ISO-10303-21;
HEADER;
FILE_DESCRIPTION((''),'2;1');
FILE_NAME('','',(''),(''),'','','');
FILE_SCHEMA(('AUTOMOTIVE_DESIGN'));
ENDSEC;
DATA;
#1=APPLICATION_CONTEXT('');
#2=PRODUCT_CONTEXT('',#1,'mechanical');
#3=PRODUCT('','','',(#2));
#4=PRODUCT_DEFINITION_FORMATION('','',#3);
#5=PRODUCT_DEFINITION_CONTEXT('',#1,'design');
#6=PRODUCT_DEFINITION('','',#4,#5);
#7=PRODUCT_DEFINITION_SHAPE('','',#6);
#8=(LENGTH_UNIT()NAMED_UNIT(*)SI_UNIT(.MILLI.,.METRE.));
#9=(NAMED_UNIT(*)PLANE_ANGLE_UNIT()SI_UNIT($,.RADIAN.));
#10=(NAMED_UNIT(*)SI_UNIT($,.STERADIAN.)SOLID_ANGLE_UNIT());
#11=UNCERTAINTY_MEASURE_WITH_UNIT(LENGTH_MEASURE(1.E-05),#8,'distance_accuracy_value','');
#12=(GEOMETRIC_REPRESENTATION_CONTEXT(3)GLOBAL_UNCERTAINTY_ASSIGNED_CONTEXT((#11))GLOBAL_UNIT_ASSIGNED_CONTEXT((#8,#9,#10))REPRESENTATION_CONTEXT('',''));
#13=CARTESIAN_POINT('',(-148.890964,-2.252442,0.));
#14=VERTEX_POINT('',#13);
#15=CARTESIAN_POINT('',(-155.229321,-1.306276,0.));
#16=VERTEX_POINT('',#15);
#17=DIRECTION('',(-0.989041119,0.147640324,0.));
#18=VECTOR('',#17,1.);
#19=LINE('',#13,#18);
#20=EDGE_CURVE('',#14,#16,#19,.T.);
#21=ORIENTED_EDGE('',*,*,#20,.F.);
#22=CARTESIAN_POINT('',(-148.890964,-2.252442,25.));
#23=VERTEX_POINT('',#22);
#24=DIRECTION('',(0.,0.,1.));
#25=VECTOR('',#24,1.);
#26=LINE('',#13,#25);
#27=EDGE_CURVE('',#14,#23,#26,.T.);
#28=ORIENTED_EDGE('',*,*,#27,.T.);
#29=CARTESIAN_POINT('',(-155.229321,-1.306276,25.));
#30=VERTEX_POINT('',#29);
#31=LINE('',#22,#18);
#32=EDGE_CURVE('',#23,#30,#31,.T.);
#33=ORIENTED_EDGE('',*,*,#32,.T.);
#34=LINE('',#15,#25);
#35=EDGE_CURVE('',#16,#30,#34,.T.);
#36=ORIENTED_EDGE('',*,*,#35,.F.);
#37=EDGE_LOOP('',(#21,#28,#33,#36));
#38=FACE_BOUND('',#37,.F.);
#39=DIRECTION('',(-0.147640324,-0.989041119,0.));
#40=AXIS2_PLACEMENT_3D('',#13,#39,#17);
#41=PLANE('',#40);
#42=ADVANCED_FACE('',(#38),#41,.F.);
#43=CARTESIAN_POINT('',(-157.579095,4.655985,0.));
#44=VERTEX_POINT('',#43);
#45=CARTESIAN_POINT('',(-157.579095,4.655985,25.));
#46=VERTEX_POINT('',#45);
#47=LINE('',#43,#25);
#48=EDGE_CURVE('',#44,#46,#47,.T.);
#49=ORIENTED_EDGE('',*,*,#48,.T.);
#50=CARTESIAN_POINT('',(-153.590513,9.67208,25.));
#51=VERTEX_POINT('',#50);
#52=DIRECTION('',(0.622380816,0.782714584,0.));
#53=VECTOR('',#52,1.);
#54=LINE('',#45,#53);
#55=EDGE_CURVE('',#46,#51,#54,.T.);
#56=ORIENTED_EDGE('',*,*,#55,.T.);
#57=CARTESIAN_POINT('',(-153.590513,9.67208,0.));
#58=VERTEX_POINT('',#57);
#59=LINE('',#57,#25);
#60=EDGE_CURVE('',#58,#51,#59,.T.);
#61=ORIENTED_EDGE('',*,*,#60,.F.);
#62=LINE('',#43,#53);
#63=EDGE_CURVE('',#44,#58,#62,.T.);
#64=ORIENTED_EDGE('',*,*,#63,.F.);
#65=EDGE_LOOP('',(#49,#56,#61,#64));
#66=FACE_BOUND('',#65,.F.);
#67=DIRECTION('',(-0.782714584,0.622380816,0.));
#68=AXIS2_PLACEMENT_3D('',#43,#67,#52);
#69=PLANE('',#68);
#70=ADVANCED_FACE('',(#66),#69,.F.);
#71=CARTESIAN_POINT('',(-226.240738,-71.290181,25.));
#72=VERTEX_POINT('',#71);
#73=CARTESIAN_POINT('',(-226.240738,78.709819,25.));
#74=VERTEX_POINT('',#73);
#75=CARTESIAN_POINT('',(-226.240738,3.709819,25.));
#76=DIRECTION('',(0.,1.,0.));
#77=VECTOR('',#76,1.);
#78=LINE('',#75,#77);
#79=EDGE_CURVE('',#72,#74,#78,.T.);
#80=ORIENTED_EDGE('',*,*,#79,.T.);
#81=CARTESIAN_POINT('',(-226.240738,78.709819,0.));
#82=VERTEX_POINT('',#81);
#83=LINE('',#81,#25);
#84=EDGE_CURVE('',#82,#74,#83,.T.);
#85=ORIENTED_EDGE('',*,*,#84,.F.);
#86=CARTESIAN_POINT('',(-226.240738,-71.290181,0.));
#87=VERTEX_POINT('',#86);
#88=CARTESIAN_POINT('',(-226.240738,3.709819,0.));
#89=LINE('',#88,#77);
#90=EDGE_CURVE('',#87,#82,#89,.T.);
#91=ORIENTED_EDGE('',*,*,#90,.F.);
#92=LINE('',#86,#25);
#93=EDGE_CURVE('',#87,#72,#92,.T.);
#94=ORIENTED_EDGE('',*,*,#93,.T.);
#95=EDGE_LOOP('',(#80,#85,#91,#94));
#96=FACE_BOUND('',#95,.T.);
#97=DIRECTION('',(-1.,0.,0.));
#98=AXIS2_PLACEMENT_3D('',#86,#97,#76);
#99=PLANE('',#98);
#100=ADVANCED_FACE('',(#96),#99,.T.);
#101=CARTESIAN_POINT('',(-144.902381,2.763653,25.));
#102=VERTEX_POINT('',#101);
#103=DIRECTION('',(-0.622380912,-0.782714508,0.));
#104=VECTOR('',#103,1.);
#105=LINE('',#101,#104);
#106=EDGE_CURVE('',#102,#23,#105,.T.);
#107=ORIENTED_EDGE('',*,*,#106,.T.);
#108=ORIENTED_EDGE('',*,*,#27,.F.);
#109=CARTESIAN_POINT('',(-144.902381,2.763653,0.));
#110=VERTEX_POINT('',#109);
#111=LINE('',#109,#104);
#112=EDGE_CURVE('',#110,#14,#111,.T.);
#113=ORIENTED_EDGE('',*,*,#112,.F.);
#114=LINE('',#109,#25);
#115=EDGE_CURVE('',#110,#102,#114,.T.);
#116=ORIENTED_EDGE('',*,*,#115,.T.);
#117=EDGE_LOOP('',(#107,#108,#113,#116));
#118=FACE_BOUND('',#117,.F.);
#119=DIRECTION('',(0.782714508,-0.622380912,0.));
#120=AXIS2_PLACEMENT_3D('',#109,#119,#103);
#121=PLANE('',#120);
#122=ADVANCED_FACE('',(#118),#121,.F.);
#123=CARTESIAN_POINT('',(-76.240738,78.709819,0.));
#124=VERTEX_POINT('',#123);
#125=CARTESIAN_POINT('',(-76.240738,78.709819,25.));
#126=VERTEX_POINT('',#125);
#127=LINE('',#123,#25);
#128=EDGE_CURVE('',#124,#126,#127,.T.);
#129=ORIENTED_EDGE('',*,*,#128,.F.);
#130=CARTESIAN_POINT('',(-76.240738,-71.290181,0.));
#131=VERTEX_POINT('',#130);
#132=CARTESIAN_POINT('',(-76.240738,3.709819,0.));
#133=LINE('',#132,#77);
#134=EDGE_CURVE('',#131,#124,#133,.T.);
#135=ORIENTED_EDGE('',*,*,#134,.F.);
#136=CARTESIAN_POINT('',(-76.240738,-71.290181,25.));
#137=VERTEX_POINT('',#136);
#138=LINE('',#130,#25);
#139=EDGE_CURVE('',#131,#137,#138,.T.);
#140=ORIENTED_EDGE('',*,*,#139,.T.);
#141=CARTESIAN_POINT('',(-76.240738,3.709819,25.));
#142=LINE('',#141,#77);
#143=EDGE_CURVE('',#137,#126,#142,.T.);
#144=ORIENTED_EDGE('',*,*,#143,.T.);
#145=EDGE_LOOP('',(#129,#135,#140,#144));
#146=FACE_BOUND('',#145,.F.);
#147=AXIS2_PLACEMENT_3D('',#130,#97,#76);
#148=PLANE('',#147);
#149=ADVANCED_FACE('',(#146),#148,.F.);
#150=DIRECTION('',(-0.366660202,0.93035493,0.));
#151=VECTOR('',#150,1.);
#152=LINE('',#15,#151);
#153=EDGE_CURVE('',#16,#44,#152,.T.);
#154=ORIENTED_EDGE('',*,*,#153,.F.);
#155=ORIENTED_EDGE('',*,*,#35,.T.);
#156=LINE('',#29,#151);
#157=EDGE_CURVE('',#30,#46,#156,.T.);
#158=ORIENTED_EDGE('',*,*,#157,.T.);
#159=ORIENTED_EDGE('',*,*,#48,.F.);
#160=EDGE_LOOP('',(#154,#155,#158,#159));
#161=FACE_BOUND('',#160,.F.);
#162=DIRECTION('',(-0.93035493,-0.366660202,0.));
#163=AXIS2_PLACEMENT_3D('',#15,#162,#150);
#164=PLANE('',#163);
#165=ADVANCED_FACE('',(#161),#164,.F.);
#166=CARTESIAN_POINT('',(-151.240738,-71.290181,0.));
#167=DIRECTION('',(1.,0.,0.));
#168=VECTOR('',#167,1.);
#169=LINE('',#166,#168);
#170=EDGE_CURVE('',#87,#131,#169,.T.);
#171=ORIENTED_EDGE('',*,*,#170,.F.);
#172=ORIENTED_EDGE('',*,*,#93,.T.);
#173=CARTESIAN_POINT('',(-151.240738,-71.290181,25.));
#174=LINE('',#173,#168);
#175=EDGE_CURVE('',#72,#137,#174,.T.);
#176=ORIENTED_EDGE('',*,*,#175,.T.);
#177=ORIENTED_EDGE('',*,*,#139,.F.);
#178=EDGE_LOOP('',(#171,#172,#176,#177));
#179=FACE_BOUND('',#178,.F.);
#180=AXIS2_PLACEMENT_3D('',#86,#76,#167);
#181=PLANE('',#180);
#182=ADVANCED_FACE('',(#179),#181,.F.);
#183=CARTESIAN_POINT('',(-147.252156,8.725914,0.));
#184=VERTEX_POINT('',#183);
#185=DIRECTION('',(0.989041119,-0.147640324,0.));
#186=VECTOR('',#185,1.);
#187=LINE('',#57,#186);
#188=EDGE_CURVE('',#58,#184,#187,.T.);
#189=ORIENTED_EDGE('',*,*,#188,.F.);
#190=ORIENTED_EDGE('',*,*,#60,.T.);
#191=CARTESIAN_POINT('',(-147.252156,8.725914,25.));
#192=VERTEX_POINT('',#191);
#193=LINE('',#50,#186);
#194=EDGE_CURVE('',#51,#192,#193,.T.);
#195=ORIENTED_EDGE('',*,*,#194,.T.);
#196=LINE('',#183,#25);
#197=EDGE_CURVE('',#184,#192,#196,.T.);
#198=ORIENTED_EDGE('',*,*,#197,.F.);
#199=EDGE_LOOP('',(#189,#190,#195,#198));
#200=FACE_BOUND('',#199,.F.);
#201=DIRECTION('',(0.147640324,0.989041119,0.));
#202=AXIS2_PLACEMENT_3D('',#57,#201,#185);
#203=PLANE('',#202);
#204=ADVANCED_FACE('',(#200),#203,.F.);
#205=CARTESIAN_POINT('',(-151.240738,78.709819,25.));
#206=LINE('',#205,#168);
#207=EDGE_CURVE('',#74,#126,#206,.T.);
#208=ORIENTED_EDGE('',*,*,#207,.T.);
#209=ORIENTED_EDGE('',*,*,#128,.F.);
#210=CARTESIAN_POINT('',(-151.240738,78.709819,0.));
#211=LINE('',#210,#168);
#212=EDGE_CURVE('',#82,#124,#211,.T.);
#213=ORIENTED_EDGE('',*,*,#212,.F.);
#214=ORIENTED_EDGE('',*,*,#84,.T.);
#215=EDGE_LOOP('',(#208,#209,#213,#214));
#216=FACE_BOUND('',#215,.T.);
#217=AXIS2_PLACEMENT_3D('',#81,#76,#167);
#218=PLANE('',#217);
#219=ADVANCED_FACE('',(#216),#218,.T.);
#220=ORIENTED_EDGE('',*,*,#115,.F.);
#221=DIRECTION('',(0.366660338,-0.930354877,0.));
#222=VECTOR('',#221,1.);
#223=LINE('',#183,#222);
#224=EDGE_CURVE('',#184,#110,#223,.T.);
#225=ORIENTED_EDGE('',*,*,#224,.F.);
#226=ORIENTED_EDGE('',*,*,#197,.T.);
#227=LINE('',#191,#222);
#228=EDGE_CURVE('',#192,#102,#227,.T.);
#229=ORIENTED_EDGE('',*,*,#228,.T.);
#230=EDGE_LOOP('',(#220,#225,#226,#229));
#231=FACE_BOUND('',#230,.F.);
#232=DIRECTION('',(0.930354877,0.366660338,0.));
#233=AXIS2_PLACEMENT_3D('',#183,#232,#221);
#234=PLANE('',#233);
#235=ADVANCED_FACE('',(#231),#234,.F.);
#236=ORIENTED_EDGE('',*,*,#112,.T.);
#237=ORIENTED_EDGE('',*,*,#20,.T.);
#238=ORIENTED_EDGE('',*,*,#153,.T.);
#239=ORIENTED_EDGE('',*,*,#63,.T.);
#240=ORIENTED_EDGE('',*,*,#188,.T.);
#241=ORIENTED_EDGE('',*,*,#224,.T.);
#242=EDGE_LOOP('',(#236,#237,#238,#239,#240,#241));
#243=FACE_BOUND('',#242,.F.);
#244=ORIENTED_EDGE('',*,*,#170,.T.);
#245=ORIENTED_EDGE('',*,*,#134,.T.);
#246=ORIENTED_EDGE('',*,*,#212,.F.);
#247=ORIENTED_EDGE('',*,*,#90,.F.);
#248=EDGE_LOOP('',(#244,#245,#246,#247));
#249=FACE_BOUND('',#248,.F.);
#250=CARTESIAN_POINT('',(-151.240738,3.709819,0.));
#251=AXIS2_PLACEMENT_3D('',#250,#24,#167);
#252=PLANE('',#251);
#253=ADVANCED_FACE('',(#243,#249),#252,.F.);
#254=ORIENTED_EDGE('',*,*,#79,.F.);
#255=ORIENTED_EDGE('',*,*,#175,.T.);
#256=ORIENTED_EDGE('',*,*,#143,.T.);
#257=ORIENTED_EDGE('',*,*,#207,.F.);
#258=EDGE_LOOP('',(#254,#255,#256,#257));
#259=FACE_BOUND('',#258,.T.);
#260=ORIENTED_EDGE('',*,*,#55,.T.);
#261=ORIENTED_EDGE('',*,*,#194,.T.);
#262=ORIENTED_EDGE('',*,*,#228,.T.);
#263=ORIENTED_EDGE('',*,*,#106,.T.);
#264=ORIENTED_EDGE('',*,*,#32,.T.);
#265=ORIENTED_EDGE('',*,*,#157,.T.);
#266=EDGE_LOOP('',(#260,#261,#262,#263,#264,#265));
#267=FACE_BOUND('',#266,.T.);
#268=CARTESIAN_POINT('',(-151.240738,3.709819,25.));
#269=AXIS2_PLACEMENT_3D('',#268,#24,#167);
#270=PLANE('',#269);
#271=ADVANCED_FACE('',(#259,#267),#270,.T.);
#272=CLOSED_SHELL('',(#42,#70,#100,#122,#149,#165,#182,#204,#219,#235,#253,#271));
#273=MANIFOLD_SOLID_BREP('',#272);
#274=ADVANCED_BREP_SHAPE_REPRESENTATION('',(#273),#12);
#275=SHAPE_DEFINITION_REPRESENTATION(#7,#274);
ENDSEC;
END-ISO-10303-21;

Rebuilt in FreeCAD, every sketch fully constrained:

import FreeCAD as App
import Part
import Sketcher

V = App.Vector

doc = App.newDocument("Part")
body = doc.addObject("PartDesign::Body", "Body")

sketch1 = body.newObject("Sketcher::SketchObject", "Sketch")
sketch1.AttachmentSupport = (doc.getObject("XY_Plane"), [""])
sketch1.MapMode = "FlatFace"
sketch1.addGeometry(Part.LineSegment(V(-226.240738, 78.709819, 0), V(-226.240738, -71.290181, 0)), False)
sketch1.addGeometry(Part.LineSegment(V(-226.240738, -71.290181, 0), V(-76.240738, -71.290181, 0)), False)
sketch1.addGeometry(Part.LineSegment(V(-76.240738, -71.290181, 0), V(-76.240738, 78.709819, 0)), False)
sketch1.addGeometry(Part.LineSegment(V(-76.240738, 78.709819, 0), V(-226.240738, 78.709819, 0)), False)
sketch1.addGeometry(Part.LineSegment(V(-157.579095, 4.655985, 0), V(-153.590513, 9.67208, 0)), False)
sketch1.addGeometry(Part.LineSegment(V(-153.590513, 9.67208, 0), V(-147.252156, 8.725914, 0)), False)
sketch1.addGeometry(Part.LineSegment(V(-147.252156, 8.725914, 0), V(-144.902381, 2.763653, 0)), False)
sketch1.addGeometry(Part.LineSegment(V(-144.902381, 2.763653, 0), V(-148.890964, -2.252442, 0)), False)
sketch1.addGeometry(Part.LineSegment(V(-148.890964, -2.252442, 0), V(-155.229321, -1.306276, 0)), False)
sketch1.addGeometry(Part.LineSegment(V(-155.229321, -1.306276, 0), V(-157.579095, 4.655985, 0)), False)
sketch1.addConstraint(Sketcher.Constraint("Coincident", 0, 2, 1, 1))
sketch1.addConstraint(Sketcher.Constraint("Coincident", 1, 2, 2, 1))
sketch1.addConstraint(Sketcher.Constraint("Coincident", 2, 2, 3, 1))
sketch1.addConstraint(Sketcher.Constraint("Coincident", 3, 2, 0, 1))
sketch1.addConstraint(Sketcher.Constraint("Coincident", 4, 2, 5, 1))
sketch1.addConstraint(Sketcher.Constraint("Coincident", 5, 2, 6, 1))
sketch1.addConstraint(Sketcher.Constraint("Coincident", 6, 2, 7, 1))
sketch1.addConstraint(Sketcher.Constraint("Coincident", 7, 2, 8, 1))
sketch1.addConstraint(Sketcher.Constraint("Coincident", 8, 2, 9, 1))
sketch1.addConstraint(Sketcher.Constraint("Coincident", 9, 2, 4, 1))
sketch1.addConstraint(Sketcher.Constraint("Vertical", 0))
sketch1.addConstraint(Sketcher.Constraint("Horizontal", 1))
sketch1.addConstraint(Sketcher.Constraint("Vertical", 2))
sketch1.addConstraint(Sketcher.Constraint("Horizontal", 3))
sketch1.addConstraint(Sketcher.Constraint("Parallel", 4, 7))
sketch1.addConstraint(Sketcher.Constraint("Parallel", 5, 8))
sketch1.addConstraint(Sketcher.Constraint("Parallel", 6, 9))
sketch1.addConstraint(Sketcher.Constraint("Equal", 3, 0))
sketch1.addConstraint(Sketcher.Constraint("Equal", 4, 5))
sketch1.addConstraint(Sketcher.Constraint("Equal", 5, 6))
sketch1.addConstraint(Sketcher.Constraint("Equal", 6, 7))
sketch1.addConstraint(Sketcher.Constraint("DistanceX", 1, 1, 1, 2, 150.0))
sketch1.addConstraint(Sketcher.Constraint("Distance", 7, 6.408588))
sketch1.addConstraint(Sketcher.Constraint("DistanceX", 0, 2, -1, 1, 226.240738))
sketch1.addConstraint(Sketcher.Constraint("DistanceY", 0, 2, -1, 1, 71.290181))
sketch1.addConstraint(Sketcher.Constraint("DistanceY", -1, 1, 4, 2, 9.67208))
sketch1.addConstraint(Sketcher.Constraint("DistanceX", 6, 2, -1, 1, 144.902381))
sketch1.addConstraint(Sketcher.Constraint("DistanceY", 7, 2, -1, 1, 2.252442))
sketch1.addConstraint(Sketcher.Constraint("DistanceX", 8, 2, -1, 1, 155.229321))
sketch1.addConstraint(Sketcher.Constraint("DistanceX", 5, 2, 2, 2, 71.011418))
pad1 = body.newObject("PartDesign::Pad", "Pad")
pad1.Profile = sketch1
pad1.Length = 25

doc.recompute()
